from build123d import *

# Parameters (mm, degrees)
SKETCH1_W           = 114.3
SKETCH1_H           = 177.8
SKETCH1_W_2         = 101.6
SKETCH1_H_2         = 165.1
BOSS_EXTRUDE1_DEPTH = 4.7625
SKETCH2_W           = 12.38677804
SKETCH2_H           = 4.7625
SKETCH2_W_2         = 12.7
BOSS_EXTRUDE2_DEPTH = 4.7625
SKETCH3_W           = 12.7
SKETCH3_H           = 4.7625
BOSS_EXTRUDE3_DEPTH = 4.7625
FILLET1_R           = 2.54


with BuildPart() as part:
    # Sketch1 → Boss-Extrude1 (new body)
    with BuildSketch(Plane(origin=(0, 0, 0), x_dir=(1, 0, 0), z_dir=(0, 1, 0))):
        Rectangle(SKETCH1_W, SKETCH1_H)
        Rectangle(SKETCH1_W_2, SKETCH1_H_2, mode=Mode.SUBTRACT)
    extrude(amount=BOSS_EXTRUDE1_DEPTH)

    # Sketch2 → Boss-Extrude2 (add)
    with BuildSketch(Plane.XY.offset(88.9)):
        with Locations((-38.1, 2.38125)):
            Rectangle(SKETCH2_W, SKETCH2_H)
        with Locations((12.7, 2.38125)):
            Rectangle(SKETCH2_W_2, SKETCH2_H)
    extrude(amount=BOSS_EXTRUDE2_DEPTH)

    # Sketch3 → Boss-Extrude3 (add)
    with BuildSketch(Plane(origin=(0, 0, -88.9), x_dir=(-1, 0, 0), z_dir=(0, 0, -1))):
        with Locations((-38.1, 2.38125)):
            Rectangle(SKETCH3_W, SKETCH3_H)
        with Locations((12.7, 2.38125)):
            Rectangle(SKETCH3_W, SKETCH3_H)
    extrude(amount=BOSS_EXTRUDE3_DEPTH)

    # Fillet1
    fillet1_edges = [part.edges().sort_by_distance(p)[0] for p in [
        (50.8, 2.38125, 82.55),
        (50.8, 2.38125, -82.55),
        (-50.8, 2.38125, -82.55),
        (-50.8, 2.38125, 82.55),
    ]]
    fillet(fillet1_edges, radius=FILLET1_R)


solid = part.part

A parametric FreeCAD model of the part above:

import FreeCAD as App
import Part
import Sketcher

V = App.Vector
Q = App.Units.Quantity


def edges_at(feature, points):
    """Names of the edges that pass closest to the given points."""
    edges = feature.Shape.Edges
    near = lambda p: min(range(len(edges)), key=lambda i: edges[i].distToShape(Part.Vertex(*p))[0])
    return sorted({f"Edge{near(p) + 1}" for p in points})

doc = App.newDocument("Part")
body = doc.addObject("PartDesign::Body", "Body")

# Sketch on XZ plane
sketch1 = body.newObject("Sketcher::SketchObject", "Sketch")
sketch1.AttachmentSupport = (doc.getObject("XZ_Plane"), [""])
sketch1.MapMode = "FlatFace"
sketch1.addGeometry([
    Part.LineSegment(V(-57.15, -88.9, 0), V(-57.15, 88.9, 0)),  # 0
    Part.LineSegment(V(-57.15, 88.9, 0), V(57.15, 88.9, 0)),  # 1
    Part.LineSegment(V(57.15, 88.9, 0), V(57.15, -88.9, 0)),  # 2
    Part.LineSegment(V(57.15, -88.9, 0), V(-57.15, -88.9, 0)),  # 3
    Part.LineSegment(V(50.8, 82.55, 0), V(-50.8, 82.55, 0)),  # 4
    Part.LineSegment(V(-50.8, 82.55, 0), V(-50.8, -82.55, 0)),  # 5
    Part.LineSegment(V(-50.8, -82.55, 0), V(50.8, -82.55, 0)),  # 6
    Part.LineSegment(V(50.8, -82.55, 0), V(50.8, 82.55, 0)),  # 7
], False)
sketch1.addConstraint([
    Sketcher.Constraint("Coincident", 0, 2, 1, 1),
    Sketcher.Constraint("Coincident", 1, 2, 2, 1),
    Sketcher.Constraint("Coincident", 2, 2, 3, 1),
    Sketcher.Constraint("Coincident", 3, 2, 0, 1),
    Sketcher.Constraint("Coincident", 4, 2, 5, 1),
    Sketcher.Constraint("Coincident", 5, 2, 6, 1),
    Sketcher.Constraint("Coincident", 6, 2, 7, 1),
    Sketcher.Constraint("Coincident", 7, 2, 4, 1),
    Sketcher.Constraint("Vertical", 0),
    Sketcher.Constraint("Horizontal", 1),
    Sketcher.Constraint("Vertical", 2),
    Sketcher.Constraint("Horizontal", 3),
    Sketcher.Constraint("Horizontal", 4),
    Sketcher.Constraint("Vertical", 5),
    Sketcher.Constraint("Horizontal", 6),
    Sketcher.Constraint("Vertical", 7),
    Sketcher.Constraint("Symmetric", 0, 2, 2, 2, -1, 1),
    Sketcher.Constraint("Symmetric", 4, 2, 6, 2, -1, 1),
    Sketcher.Constraint("DistanceX", 4, 2, 4, 1, Q("4 in")),
    Sketcher.Constraint("DistanceY", 0, 1, 0, 2, Q("7 in")),
    Sketcher.Constraint("DistanceX", 1, 1, 1, 2, Q("4.5 in")),
    Sketcher.Constraint("DistanceY", 5, 2, 5, 1, Q("6.5 in")),
])
pad1 = body.newObject("PartDesign::Pad", "Pad")
pad1.Profile = sketch1
pad1.Length = Q("0.1875 in")
pad1.Reversed = True

# Sketch on XY plane
sketch2 = body.newObject("Sketcher::SketchObject", "Sketch001")
sketch2.AttachmentSupport = (doc.getObject("XY_Plane"), [""])
sketch2.MapMode = "FlatFace"
sketch2.AttachmentOffset = App.Placement(V(0, 0, 3.5 * 25.4), App.Rotation())
sketch2.addGeometry([
    Part.LineSegment(V(-44.293389, 4.7625, 0), V(-44.293389, 0, 0)),  # 0
    Part.LineSegment(V(-44.293389, 0, 0), V(-31.906611, 0, 0)),  # 1
    Part.LineSegment(V(-31.906611, 0, 0), V(-31.906611, 4.7625, 0)),  # 2
    Part.LineSegment(V(-31.906611, 4.7625, 0), V(-44.293389, 4.7625, 0)),  # 3
    Part.LineSegment(V(6.35, 4.7625, 0), V(6.35, 0, 0)),  # 4
    Part.LineSegment(V(6.35, 0, 0), V(19.05, 0, 0)),  # 5
    Part.LineSegment(V(19.05, 0, 0), V(19.05, 4.7625, 0)),  # 6
    Part.LineSegment(V(19.05, 4.7625, 0), V(6.35, 4.7625, 0)),  # 7
], False)
sketch2.addConstraint([
    Sketcher.Constraint("Coincident", 0, 2, 1, 1),
    Sketcher.Constraint("Coincident", 1, 2, 2, 1),
    Sketcher.Constraint("Coincident", 2, 2, 3, 1),
    Sketcher.Constraint("Coincident", 3, 2, 0, 1),
    Sketcher.Constraint("Coincident", 4, 2, 5, 1),
    Sketcher.Constraint("Coincident", 5, 2, 6, 1),
    Sketcher.Constraint("Coincident", 6, 2, 7, 1),
    Sketcher.Constraint("Coincident", 7, 2, 4, 1),
    Sketcher.Constraint("Vertical", 0),
    Sketcher.Constraint("Horizontal", 1),
    Sketcher.Constraint("Vertical", 2),
    Sketcher.Constraint("Horizontal", 3),
    Sketcher.Constraint("Vertical", 4),
    Sketcher.Constraint("Horizontal", 5),
    Sketcher.Constraint("Vertical", 6),
    Sketcher.Constraint("Horizontal", 7),
    Sketcher.Constraint("PointOnObject", 0, 2, -1),
    Sketcher.Constraint("PointOnObject", 4, 2, -1),
    Sketcher.Constraint("Horizontal", 3, 2, 6, 2),
    Sketcher.Constraint("DistanceX", 5, 1, 5, 2, Q("0.5 in")),
    Sketcher.Constraint("DistanceY", 0, 2, 0, 1, Q("0.1875 in")),
    Sketcher.Constraint("DistanceX", -1, 1, 4, 2, Q("0.25 in")),
    Sketcher.Constraint("DistanceX", 1, 1, 1, 2, Q("12.386778 mm")),
    Sketcher.Constraint("DistanceX", 0, 2, -1, 1, Q("44.293389 mm")),
])
pad2 = body.newObject("PartDesign::Pad", "Pad001")
pad2.Profile = sketch2
pad2.Length = Q("0.1875 in")

# Sketch on XY plane
sketch3 = body.newObject("Sketcher::SketchObject", "Sketch002")
sketch3.AttachmentSupport = (doc.getObject("XY_Plane"), [""])
sketch3.MapMode = "FlatFace"
sketch3.AttachmentOffset = App.Placement(V(0, 0, -3.5 * 25.4), App.Rotation())
sketch3.addGeometry([
    Part.LineSegment(V(44.45, 4.7625, 0), V(44.45, 0, 0)),  # 0
    Part.LineSegment(V(44.45, 0, 0), V(31.75, 0, 0)),  # 1
    Part.LineSegment(V(31.75, 0, 0), V(31.75, 4.7625, 0)),  # 2
    Part.LineSegment(V(31.75, 4.7625, 0), V(44.45, 4.7625, 0)),  # 3
    Part.LineSegment(V(-6.35, 4.7625, 0), V(-6.35, 0, 0)),  # 4
    Part.LineSegment(V(-6.35, 0, 0), V(-19.05, 0, 0)),  # 5
    Part.LineSegment(V(-19.05, 0, 0), V(-19.05, 4.7625, 0)),  # 6
    Part.LineSegment(V(-19.05, 4.7625, 0), V(-6.35, 4.7625, 0)),  # 7
], False)
sketch3.addConstraint([
    Sketcher.Constraint("Coincident", 0, 2, 1, 1),
    Sketcher.Constraint("Coincident", 1, 2, 2, 1),
    Sketcher.Constraint("Coincident", 2, 2, 3, 1),
    Sketcher.Constraint("Coincident", 3, 2, 0, 1),
    Sketcher.Constraint("Coincident", 4, 2, 5, 1),
    Sketcher.Constraint("Coincident", 5, 2, 6, 1),
    Sketcher.Constraint("Coincident", 6, 2, 7, 1),
    Sketcher.Constraint("Coincident", 7, 2, 4, 1),
    Sketcher.Constraint("Vertical", 0),
    Sketcher.Constraint("Horizontal", 1),
    Sketcher.Constraint("Vertical", 2),
    Sketcher.Constraint("Horizontal", 3),
    Sketcher.Constraint("Vertical", 4),
    Sketcher.Constraint("Horizontal", 5),
    Sketcher.Constraint("Vertical", 6),
    Sketcher.Constraint("Horizontal", 7),
    Sketcher.Constraint("PointOnObject", 0, 2, -1),
    Sketcher.Constraint("PointOnObject", 4, 2, -1),
    Sketcher.Constraint("Horizontal", 3, 2, 6, 2),
    Sketcher.Constraint("Equal", 3, 5),
    Sketcher.Constraint("DistanceX", 1, 2, 1, 1, Q("0.5 in")),
    Sketcher.Constraint("DistanceX", 4, 2, 0, 2, Q("2 in")),
    Sketcher.Constraint("DistanceY", 0, 2, 0, 1, Q("0.1875 in")),
    Sketcher.Constraint("DistanceX", -1, 1, 0, 2, Q("1.75 in")),
])
pad3 = body.newObject("PartDesign::Pad", "Pad002")
pad3.Profile = sketch3
pad3.Length = Q("0.1875 in")
pad3.Reversed = True
doc.recompute()

fillet = body.newObject("PartDesign::Fillet", "Fillet")
fillet.Base = (pad3, edges_at(pad3, [
    (50.8, 2.381, 82.55),
    (50.8, 2.381, -82.55),
    (-50.8, 2.381, -82.55),
    (-50.8, 2.381, 82.55),
]))
fillet.Radius = Q("0.1 in")

doc.recompute()
